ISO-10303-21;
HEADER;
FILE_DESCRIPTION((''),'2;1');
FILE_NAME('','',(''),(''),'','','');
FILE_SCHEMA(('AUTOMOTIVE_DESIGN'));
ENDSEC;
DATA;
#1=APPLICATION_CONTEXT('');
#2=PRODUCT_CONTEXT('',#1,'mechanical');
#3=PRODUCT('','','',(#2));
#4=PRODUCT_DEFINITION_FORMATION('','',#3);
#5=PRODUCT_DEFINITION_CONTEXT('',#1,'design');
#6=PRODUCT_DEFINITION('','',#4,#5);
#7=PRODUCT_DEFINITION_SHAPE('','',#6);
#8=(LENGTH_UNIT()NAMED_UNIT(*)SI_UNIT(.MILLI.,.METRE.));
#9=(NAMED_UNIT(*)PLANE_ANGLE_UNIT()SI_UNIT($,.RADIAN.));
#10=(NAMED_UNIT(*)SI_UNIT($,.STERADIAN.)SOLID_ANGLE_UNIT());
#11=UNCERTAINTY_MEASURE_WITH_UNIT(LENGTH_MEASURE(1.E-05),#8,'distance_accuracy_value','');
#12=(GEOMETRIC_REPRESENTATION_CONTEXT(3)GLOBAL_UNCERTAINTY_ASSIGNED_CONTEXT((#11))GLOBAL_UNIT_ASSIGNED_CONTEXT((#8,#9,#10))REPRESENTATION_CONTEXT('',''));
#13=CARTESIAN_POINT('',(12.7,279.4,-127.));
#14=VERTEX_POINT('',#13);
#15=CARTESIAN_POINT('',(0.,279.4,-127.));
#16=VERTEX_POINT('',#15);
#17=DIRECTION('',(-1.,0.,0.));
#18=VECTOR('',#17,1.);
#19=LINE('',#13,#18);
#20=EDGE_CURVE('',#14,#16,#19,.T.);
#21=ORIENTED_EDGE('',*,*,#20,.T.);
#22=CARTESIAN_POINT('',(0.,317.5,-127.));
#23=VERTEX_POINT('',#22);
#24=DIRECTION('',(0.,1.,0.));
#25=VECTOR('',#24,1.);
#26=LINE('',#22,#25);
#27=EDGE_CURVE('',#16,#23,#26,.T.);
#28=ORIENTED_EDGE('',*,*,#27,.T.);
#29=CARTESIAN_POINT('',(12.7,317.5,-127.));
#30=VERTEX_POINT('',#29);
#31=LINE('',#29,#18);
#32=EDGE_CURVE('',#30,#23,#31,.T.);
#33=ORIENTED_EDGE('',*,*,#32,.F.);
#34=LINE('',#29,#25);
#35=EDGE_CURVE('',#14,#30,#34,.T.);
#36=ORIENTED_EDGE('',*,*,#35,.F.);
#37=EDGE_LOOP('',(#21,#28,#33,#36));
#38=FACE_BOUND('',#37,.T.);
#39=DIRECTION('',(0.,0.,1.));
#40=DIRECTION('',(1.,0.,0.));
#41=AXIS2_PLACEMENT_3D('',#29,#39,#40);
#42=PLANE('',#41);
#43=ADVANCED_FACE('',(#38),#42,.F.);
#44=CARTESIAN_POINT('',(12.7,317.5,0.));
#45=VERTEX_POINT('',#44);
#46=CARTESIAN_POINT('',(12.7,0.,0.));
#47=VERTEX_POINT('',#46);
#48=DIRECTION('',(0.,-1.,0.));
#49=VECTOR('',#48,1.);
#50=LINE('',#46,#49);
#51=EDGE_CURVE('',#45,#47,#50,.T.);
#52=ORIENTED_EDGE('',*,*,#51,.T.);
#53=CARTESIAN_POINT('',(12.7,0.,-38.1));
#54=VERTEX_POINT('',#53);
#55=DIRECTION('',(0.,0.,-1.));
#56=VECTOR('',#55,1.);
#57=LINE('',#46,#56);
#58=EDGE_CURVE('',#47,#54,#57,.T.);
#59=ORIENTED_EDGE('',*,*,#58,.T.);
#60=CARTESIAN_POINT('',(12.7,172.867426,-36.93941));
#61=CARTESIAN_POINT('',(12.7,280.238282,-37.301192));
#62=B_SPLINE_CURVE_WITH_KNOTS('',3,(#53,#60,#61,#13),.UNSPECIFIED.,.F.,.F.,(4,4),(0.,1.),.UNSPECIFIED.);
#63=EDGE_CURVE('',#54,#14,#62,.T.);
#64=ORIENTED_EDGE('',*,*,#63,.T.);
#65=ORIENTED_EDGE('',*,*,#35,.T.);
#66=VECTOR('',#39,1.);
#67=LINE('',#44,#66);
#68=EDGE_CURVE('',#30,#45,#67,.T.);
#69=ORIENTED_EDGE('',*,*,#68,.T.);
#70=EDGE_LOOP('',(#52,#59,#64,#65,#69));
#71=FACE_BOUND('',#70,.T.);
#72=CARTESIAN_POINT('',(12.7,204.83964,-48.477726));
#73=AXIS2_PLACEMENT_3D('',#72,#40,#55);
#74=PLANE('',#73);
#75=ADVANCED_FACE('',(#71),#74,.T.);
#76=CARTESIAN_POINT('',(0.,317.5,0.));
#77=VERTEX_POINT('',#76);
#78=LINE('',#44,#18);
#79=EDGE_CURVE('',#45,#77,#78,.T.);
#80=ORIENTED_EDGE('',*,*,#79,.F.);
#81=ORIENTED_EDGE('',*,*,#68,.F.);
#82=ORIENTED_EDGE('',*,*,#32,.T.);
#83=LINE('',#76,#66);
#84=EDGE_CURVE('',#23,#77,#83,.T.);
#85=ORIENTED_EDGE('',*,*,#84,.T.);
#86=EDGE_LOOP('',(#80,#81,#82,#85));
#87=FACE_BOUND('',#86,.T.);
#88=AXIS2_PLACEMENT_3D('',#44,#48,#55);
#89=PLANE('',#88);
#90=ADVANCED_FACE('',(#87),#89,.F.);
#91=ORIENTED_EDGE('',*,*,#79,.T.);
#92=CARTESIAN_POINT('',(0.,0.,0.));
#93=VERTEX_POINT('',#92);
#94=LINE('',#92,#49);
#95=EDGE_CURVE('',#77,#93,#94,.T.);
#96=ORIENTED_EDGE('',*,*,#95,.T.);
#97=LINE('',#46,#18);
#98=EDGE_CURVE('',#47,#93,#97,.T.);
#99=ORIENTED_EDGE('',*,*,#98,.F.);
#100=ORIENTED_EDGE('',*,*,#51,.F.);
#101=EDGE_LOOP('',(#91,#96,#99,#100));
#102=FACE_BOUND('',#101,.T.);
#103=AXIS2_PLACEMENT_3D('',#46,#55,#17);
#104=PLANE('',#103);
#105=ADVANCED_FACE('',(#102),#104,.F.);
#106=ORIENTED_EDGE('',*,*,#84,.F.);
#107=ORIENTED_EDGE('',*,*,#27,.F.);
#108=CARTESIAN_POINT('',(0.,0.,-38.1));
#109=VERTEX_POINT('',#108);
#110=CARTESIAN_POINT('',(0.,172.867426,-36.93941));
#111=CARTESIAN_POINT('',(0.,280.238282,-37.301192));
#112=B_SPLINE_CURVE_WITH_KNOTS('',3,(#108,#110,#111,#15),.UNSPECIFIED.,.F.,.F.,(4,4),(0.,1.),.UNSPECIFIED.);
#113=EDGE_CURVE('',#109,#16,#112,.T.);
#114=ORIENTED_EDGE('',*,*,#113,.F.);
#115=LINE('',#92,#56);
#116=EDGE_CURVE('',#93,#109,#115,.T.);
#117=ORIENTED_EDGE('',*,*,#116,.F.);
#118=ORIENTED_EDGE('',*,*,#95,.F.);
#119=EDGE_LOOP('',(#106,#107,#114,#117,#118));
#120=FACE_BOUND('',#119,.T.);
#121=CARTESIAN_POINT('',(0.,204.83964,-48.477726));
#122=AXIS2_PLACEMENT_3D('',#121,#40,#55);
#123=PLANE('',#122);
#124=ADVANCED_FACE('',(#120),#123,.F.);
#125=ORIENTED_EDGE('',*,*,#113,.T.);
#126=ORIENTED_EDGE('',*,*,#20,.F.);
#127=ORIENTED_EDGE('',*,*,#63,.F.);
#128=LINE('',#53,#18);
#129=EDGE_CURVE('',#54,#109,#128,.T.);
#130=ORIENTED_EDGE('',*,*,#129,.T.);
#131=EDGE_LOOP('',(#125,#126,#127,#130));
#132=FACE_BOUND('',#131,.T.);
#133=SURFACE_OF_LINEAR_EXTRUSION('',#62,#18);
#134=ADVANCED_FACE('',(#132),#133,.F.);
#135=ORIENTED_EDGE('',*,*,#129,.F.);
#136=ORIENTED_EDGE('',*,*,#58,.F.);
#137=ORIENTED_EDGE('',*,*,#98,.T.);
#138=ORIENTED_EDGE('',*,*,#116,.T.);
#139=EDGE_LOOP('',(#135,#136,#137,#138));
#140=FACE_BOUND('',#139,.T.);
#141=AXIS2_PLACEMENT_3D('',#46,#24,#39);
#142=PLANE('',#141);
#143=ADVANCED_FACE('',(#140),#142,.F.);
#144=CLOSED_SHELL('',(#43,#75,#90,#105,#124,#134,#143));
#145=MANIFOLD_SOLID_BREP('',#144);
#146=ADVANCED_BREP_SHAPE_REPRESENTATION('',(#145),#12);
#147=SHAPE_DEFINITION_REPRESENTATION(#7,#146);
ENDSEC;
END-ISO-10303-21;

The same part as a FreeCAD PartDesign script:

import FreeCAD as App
import Part
import Sketcher

V = App.Vector
Q = App.Units.Quantity

doc = App.newDocument("Part")
body = doc.addObject("PartDesign::Body", "Body")

sketch1 = body.newObject("Sketcher::SketchObject", "Sketch")
sketch1.AttachmentSupport = (doc.getObject("YZ_Plane"), [""])
sketch1.MapMode = "FlatFace"
sketch1.addGeometry([
    Part.LineSegment(V(317.5, 0, 0), V(0, 0, 0)),
    Part.LineSegment(V(0, 0, 0), V(0, -38.1, 0)),
    Part.BSplineCurve([V(0, -38.1, 0), V(172.867426, -36.93941, 0), V(280.238282, -37.301192, 0), V(279.4, -127, 0)], [4, 4], [0, 1], False, 3, [1, 1, 1, 1], False),
    Part.LineSegment(V(279.4, -127, 0), V(317.5, -127, 0)),
    Part.LineSegment(V(317.5, -127, 0), V(317.5, 0, 0)),
], False)
sketch1.addConstraint([
    Sketcher.Constraint("Block", 2),
    Sketcher.Constraint("Coincident", 0, 2, 1, 1),
    Sketcher.Constraint("Coincident", 1, 2, 2, 1),
    Sketcher.Constraint("Coincident", 2, 2, 3, 1),
    Sketcher.Constraint("Coincident", 3, 2, 4, 1),
    Sketcher.Constraint("Coincident", 4, 2, 0, 1),
    Sketcher.Constraint("Horizontal", 0),
    Sketcher.Constraint("Vertical", 1),
    Sketcher.Constraint("Horizontal", 3),
    Sketcher.Constraint("Vertical", 4),
    Sketcher.Constraint("PointOnObject", 4, 2, -1),
    Sketcher.Constraint("Equal", 3, 1),
])
pad1 = body.newObject("PartDesign::Pad", "Pad")
pad1.Profile = sketch1
pad1.Length = Q("0.5 in")

doc.recompute()
